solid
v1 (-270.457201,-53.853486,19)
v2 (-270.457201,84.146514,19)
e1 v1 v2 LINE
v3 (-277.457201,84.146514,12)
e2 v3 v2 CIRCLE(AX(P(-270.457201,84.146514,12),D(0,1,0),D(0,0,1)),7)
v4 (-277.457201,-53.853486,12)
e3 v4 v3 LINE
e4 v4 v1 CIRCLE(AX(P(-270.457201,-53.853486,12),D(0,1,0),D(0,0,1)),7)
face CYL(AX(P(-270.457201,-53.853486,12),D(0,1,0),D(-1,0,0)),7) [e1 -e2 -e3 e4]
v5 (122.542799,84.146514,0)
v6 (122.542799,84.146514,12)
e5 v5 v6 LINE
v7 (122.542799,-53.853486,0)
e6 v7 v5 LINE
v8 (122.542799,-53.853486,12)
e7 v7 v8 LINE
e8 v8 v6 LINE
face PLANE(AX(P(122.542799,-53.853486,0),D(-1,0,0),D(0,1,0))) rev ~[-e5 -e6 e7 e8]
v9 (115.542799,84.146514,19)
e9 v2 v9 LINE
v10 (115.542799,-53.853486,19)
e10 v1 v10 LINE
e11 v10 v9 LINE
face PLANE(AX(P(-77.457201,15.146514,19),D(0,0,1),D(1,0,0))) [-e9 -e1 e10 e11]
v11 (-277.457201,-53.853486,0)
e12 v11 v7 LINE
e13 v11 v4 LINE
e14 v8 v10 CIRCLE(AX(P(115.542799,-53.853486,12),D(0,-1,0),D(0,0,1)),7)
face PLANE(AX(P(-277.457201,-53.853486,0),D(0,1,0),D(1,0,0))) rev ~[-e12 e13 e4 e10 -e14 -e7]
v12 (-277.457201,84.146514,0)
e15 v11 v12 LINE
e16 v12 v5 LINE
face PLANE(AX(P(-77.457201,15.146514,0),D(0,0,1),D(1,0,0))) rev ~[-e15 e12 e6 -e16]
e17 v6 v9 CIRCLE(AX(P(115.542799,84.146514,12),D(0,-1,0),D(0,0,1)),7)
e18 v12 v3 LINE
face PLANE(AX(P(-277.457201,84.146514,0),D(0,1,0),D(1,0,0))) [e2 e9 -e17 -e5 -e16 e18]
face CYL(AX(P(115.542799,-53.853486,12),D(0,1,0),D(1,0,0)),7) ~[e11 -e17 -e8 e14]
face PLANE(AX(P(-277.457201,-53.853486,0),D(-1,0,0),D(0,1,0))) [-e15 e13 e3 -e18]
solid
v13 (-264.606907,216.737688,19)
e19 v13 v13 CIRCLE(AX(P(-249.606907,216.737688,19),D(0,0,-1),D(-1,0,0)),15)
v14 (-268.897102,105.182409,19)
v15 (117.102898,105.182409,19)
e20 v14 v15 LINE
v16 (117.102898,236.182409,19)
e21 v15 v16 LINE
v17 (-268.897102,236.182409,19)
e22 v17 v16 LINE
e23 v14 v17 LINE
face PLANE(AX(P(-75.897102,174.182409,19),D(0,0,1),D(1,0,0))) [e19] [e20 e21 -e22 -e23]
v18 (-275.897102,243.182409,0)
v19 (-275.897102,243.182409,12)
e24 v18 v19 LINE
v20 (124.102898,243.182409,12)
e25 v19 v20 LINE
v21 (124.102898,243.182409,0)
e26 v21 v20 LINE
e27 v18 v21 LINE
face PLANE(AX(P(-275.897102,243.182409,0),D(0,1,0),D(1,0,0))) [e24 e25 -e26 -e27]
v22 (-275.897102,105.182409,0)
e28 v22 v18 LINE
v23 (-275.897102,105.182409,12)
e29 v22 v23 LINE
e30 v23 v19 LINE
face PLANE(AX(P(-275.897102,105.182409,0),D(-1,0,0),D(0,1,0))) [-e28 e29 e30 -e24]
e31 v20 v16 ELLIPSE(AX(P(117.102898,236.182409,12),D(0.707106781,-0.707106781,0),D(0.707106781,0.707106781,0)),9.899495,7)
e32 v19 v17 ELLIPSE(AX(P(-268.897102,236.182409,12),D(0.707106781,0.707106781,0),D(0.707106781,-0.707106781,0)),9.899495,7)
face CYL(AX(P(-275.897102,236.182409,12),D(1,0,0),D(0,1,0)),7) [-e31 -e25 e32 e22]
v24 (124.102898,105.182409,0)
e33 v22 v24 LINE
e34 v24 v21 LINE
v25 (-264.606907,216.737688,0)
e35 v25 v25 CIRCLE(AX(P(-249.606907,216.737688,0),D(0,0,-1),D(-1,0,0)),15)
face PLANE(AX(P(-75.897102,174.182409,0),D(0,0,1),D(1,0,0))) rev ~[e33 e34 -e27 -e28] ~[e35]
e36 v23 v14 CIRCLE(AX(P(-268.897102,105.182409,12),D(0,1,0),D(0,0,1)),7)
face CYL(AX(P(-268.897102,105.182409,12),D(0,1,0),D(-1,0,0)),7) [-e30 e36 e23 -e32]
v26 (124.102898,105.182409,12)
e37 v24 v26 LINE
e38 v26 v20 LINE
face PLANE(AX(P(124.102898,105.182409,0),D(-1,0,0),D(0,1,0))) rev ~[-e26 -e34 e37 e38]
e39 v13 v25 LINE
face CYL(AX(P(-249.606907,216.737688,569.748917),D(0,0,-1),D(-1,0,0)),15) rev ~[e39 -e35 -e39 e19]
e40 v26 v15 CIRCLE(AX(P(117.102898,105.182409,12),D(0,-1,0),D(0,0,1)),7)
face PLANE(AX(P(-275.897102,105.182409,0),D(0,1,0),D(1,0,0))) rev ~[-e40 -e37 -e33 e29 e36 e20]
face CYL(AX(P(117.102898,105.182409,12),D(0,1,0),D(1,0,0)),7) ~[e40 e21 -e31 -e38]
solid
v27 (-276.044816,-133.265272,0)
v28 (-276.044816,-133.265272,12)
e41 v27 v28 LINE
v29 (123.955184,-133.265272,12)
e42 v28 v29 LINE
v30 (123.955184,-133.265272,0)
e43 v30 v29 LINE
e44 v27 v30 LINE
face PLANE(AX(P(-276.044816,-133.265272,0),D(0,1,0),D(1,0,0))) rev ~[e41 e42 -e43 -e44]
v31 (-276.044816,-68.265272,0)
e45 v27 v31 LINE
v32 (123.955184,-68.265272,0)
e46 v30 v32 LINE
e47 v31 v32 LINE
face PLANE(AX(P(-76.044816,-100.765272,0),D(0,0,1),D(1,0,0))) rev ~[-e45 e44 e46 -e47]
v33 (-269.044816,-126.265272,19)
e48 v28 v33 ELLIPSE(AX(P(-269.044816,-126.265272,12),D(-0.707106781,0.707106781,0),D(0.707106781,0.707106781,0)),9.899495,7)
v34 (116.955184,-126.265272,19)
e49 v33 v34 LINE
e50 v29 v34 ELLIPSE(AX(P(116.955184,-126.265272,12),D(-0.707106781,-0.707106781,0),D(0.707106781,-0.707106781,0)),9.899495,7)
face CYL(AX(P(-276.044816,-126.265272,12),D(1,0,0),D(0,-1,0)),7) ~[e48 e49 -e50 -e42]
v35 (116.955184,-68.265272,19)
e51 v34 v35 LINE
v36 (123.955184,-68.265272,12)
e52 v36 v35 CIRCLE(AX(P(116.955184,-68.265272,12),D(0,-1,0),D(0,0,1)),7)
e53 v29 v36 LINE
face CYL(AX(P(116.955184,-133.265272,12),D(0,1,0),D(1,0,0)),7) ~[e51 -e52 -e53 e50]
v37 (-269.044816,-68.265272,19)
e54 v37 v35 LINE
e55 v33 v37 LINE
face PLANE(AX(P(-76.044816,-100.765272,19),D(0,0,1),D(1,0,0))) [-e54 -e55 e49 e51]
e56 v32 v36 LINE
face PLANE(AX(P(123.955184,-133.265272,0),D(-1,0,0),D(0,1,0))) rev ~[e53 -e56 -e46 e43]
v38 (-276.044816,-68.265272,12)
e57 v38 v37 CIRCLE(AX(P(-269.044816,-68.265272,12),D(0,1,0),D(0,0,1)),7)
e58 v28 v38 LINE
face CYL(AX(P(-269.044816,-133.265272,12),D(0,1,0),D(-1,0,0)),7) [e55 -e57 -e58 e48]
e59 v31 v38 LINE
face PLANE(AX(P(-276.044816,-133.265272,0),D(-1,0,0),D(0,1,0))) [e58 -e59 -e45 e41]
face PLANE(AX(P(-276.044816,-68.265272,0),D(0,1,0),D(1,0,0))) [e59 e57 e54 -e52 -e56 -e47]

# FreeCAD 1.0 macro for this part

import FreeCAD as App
import Part
import Sketcher
from FreeCAD import Vector


def edges_at(feature, points):
    """Names of the edges that pass closest to the given points."""
    edges = feature.Shape.Edges
    near = lambda p: min(range(len(edges)), key=lambda i: edges[i].distToShape(Part.Vertex(*p))[0])
    return sorted({f"Edge{near(p) + 1}" for p in points})

doc = App.newDocument("Part")
params = doc.addObject("Spreadsheet::Sheet", "Params")
for row, (alias, value) in enumerate([
    ("sketch1_width", "400 mm"),
    ("sketch1_height", "65 mm"),
    ("sketch1_height2", "138 mm"),
    ("pad1_length", "19 mm"),
    ("fillet_radius", "7 mm"),
    ("sketch2_diameter", "30 mm"),
    ("hole_diameter", "30 mm"),
], start=1):
    params.set(f"A{row}", alias)
    params.set(f"B{row}", "=" + value)
    params.setAlias(f"B{row}", alias)

body = doc.addObject("PartDesign::Body", "Body")
body.AllowCompound = True

# Sketch on XY plane
sketch1 = doc.addObject("Sketcher::SketchObject", "Sketch")
body.addObject(sketch1)
sketch1.AttachmentSupport = (doc.XY_Plane, [""])
sketch1.MapMode = "FlatFace"
sketch1.addGeometry(Part.LineSegment(Vector(-276.044816, -68.265272, 0), Vector(-276.044816, -133.265272, 0)), False)
sketch1.addGeometry(Part.LineSegment(Vector(-276.044816, -133.265272, 0), Vector(123.955184, -133.265272, 0)), False)
sketch1.addGeometry(Part.LineSegment(Vector(123.955184, -133.265272, 0), Vector(123.955184, -68.265272, 0)), False)
sketch1.addGeometry(Part.LineSegment(Vector(123.955184, -68.265272, 0), Vector(-276.044816, -68.265272, 0)), False)
sketch1.addGeometry(Part.LineSegment(Vector(-277.457201, 84.146514, 0), Vector(-277.457201, -53.853486, 0)), False)
sketch1.addGeometry(Part.LineSegment(Vector(-277.457201, -53.853486, 0), Vector(122.542799, -53.853486, 0)), False)
sketch1.addGeometry(Part.LineSegment(Vector(122.542799, -53.853486, 0), Vector(122.542799, 84.146514, 0)), False)
sketch1.addGeometry(Part.LineSegment(Vector(122.542799, 84.146514, 0), Vector(-277.457201, 84.146514, 0)), False)
sketch1.addGeometry(Part.LineSegment(Vector(-275.897102, 243.182409, 0), Vector(-275.897102, 105.182409, 0)), False)
sketch1.addGeometry(Part.LineSegment(Vector(-275.897102, 105.182409, 0), Vector(124.102898, 105.182409, 0)), False)
sketch1.addGeometry(Part.LineSegment(Vector(124.102898, 105.182409, 0), Vector(124.102898, 243.182409, 0)), False)
sketch1.addGeometry(Part.LineSegment(Vector(124.102898, 243.182409, 0), Vector(-275.897102, 243.182409, 0)), False)
sketch1.addConstraint(Sketcher.Constraint("Coincident", 0, 2, 1, 1))
sketch1.addConstraint(Sketcher.Constraint("Coincident", 1, 2, 2, 1))
sketch1.addConstraint(Sketcher.Constraint("Coincident", 2, 2, 3, 1))
sketch1.addConstraint(Sketcher.Constraint("Coincident", 3, 2, 0, 1))
sketch1.addConstraint(Sketcher.Constraint("Coincident", 4, 2, 5, 1))
sketch1.addConstraint(Sketcher.Constraint("Coincident", 5, 2, 6, 1))
sketch1.addConstraint(Sketcher.Constraint("Coincident", 6, 2, 7, 1))
sketch1.addConstraint(Sketcher.Constraint("Coincident", 7, 2, 4, 1))
sketch1.addConstraint(Sketcher.Constraint("Coincident", 8, 2, 9, 1))
sketch1.addConstraint(Sketcher.Constraint("Coincident", 9, 2, 10, 1))
sketch1.addConstraint(Sketcher.Constraint("Coincident", 10, 2, 11, 1))
sketch1.addConstraint(Sketcher.Constraint("Coincident", 11, 2, 8, 1))
sketch1.addConstraint(Sketcher.Constraint("Vertical", 0))
sketch1.addConstraint(Sketcher.Constraint("Horizontal", 1))
sketch1.addConstraint(Sketcher.Constraint("Vertical", 2))
sketch1.addConstraint(Sketcher.Constraint("Horizontal", 3))
sketch1.addConstraint(Sketcher.Constraint("Vertical", 4))
sketch1.addConstraint(Sketcher.Constraint("Horizontal", 5))
sketch1.addConstraint(Sketcher.Constraint("Vertical", 6))
sketch1.addConstraint(Sketcher.Constraint("Horizontal", 7))
sketch1.addConstraint(Sketcher.Constraint("Vertical", 8))
sketch1.addConstraint(Sketcher.Constraint("Horizontal", 9))
sketch1.addConstraint(Sketcher.Constraint("Vertical", 10))
sketch1.addConstraint(Sketcher.Constraint("Horizontal", 11))
sketch1.addConstraint(Sketcher.Constraint("Equal", 3, 5))
sketch1.addConstraint(Sketcher.Constraint("Equal", 7, 9))
sketch1.addConstraint(Sketcher.Constraint("Equal", 6, 8))
sketch1.addConstraint(Sketcher.Constraint("DistanceX", 1, 1, 1, 2, 400.0))
sketch1.addConstraint(Sketcher.Constraint("DistanceY", 0, 2, 0, 1, 65.0))
sketch1.addConstraint(Sketcher.Constraint("DistanceY", 4, 2, 4, 1, 138.0))
sketch1.addConstraint(Sketcher.Constraint("DistanceX", 4, 2, -1, 1, 277.457201))
sketch1.addConstraint(Sketcher.Constraint("DistanceX", 8, 2, -1, 1, 275.897102))
sketch1.addConstraint(Sketcher.Constraint("DistanceY", 2, 2, -1, 1, 68.265272))
sketch1.addConstraint(Sketcher.Constraint("DistanceY", -1, 1, 8, 2, 105.182409))
sketch1.addConstraint(Sketcher.Constraint("DistanceX", 0, 2, -1, 1, 276.044816))
sketch1.addConstraint(Sketcher.Constraint("DistanceY", 4, 2, -1, 1, 53.853486))
sketch1.setExpression("Constraints[27]", "Params.sketch1_width")
sketch1.setExpression("Constraints[28]", "Params.sketch1_height")
sketch1.setExpression("Constraints[29]", "Params.sketch1_height2")
pad1 = doc.addObject("PartDesign::Pad", "Pad")
body.addObject(pad1)
pad1.Profile = sketch1
pad1.setExpression("Length", "Params.pad1_length")
doc.recompute()

fillet = doc.addObject("PartDesign::Fillet", "Fillet")
body.addObject(fillet)
fillet.Base = (pad1, edges_at(pad1, [
    (124.103, 174.182, 19),
    (-75.897, 243.182, 19),
    (-275.897, 174.182, 19),
    (122.543, 15.147, 19),
    (-277.457, 15.147, 19),
    (-276.045, -100.765, 19),
    (-76.045, -133.265, 19),
    (123.955, -100.765, 19),
]))
fillet.setExpression("Radius", "Params.fillet_radius")

# Sketch on XY plane
sketch2 = doc.addObject("Sketcher::SketchObject", "Sketch001")
body.addObject(sketch2)
sketch2.AttachmentSupport = (doc.XY_Plane, [""])
sketch2.MapMode = "FlatFace"
sketch2.AttachmentOffset = App.Placement(Vector(0, 0, 19), App.Rotation())
sketch2.addGeometry(Part.Circle(Vector(-249.606907, 216.737688, 0), Vector(0, 0, 1), 15), False)
sketch2.addConstraint(Sketcher.Constraint("Diameter", 0, 30.0))
sketch2.addConstraint(Sketcher.Constraint("DistanceY", -1, 1, 0, 3, 216.737688))
sketch2.addConstraint(Sketcher.Constraint("DistanceX", 0, 3, -1, 1, 249.606907))
sketch2.setExpression("Constraints[0]", "Params.sketch2_diameter")
doc.recompute()
hole = doc.addObject("PartDesign::Hole", "Hole")
body.addObject(hole)
hole.Profile = sketch2
hole.ThreadType = "None"
hole.setExpression("Diameter", "Params.hole_diameter")
hole.DepthType = "ThroughAll"

doc.recompute()
